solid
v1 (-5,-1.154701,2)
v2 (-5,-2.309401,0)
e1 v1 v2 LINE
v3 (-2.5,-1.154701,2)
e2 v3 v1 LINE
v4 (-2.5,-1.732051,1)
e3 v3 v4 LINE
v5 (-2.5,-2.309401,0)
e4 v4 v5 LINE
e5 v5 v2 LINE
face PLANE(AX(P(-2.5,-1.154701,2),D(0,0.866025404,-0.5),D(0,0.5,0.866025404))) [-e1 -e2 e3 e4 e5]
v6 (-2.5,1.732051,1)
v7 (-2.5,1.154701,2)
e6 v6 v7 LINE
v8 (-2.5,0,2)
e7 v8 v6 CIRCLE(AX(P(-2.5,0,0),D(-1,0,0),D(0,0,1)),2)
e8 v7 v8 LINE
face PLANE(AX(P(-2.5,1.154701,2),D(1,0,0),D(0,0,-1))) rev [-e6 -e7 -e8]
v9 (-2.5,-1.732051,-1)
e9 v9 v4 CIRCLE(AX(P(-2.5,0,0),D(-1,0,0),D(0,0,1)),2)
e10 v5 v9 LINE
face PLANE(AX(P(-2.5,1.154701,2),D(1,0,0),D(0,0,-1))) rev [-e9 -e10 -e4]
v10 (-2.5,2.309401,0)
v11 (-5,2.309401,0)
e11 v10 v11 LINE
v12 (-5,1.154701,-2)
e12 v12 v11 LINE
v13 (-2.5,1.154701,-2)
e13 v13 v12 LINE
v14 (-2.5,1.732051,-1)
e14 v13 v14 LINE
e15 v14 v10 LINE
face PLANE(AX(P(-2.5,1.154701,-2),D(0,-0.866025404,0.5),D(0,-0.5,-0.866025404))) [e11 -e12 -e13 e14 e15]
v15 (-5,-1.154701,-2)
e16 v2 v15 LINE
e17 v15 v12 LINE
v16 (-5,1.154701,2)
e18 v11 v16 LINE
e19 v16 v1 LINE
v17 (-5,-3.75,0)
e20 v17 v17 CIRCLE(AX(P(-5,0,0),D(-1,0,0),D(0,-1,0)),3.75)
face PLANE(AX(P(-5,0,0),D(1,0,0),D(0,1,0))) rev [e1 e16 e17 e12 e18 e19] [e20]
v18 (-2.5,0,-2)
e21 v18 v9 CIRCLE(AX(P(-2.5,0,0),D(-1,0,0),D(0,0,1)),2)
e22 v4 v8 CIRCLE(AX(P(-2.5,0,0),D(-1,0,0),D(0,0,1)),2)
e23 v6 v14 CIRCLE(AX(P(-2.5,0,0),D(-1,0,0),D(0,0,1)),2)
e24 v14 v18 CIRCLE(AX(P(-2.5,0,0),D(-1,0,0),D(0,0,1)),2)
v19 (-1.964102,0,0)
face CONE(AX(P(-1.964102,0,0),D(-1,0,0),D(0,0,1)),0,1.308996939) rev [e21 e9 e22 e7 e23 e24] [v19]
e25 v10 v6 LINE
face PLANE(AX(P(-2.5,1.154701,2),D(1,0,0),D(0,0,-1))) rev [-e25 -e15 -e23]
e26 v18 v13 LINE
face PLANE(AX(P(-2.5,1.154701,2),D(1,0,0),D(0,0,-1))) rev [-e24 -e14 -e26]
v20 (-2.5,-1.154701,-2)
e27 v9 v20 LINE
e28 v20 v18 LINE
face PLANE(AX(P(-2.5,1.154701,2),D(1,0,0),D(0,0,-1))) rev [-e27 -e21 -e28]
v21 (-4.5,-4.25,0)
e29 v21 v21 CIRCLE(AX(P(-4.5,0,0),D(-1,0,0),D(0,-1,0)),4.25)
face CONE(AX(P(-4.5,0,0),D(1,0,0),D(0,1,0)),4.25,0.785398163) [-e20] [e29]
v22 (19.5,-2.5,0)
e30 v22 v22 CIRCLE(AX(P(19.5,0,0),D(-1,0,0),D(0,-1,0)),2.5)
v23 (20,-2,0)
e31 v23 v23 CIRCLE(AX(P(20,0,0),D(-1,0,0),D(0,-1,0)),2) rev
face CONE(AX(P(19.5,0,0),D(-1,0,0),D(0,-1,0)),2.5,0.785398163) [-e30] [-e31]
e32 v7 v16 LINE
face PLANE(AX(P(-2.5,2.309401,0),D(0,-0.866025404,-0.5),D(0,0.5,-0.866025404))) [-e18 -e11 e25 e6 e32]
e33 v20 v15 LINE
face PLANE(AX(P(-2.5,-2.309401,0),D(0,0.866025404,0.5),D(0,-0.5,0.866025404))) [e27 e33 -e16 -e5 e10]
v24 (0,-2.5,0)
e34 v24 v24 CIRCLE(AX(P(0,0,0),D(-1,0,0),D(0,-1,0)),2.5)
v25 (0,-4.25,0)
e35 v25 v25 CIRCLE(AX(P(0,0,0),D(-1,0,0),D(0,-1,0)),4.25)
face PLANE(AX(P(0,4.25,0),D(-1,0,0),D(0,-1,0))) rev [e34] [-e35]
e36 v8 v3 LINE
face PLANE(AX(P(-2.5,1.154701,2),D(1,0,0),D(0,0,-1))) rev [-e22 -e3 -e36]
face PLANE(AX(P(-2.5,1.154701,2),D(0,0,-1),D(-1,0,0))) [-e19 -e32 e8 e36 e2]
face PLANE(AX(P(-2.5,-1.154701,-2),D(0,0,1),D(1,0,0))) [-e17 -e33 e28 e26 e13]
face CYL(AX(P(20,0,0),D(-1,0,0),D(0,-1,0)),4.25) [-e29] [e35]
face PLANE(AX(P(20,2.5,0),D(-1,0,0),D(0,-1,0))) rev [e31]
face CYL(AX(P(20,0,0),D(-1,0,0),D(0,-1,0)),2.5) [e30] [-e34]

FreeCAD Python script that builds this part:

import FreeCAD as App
import Part
import Sketcher
Q = App.Units.Quantity


def edges_at(feature, points):
    """Names of the edges that pass closest to the given points."""
    edges = feature.Shape.Edges
    near = lambda p: min(range(len(edges)), key=lambda i: edges[i].distToShape(Part.Vertex(*p))[0])
    return sorted({f"Edge{near(p) + 1}" for p in points})


def add_polygon(sketch, points):
    """Adds a closed chain of lines whose ends are joined by coincident constraints."""
    first, n = sketch.GeometryCount, len(points)
    for a, b in zip(points, points[1:] + points[:1]):
        sketch.addGeometry(Part.LineSegment(App.Vector(*a, 0), App.Vector(*b, 0)), False)
    for i in range(n):
        sketch.addConstraint(Sketcher.Constraint("Coincident", first + i, 2, first + (i + 1) % n, 1))

doc = App.newDocument("Part")
body = doc.addObject("PartDesign::Body", "Body")

# Sketch on XY plane
sketch1 = body.newObject("Sketcher::SketchObject", "Sketch")
sketch1.AttachmentSupport = (doc.getObject("XY_Plane"), [""])
sketch1.MapMode = "FlatFace"
add_polygon(sketch1, [(-5, 3.75), (-5, 0), (20, 0), (20, 2.5), (0, 2.5), (0, 4.25), (-4.5, 4.25)])  # lines 0-6
sketch1.addConstraint([
    Sketcher.Constraint("Vertical", 0),
    Sketcher.Constraint("Horizontal", 1),
    Sketcher.Constraint("Vertical", 2),
    Sketcher.Constraint("Horizontal", 3),
    Sketcher.Constraint("Vertical", 4),
    Sketcher.Constraint("Horizontal", 5),
    Sketcher.Constraint("PointOnObject", 0, 2, -1),
    Sketcher.Constraint("PointOnObject", 3, 2, -2),
    Sketcher.Constraint("DistanceX", 1, 1, 1, 2, 25.0),
    Sketcher.Constraint("DistanceX", 3, 2, 3, 1, 20.0),
    Sketcher.Constraint("Angle", 6, Q("-135 deg")),
    Sketcher.Constraint("DistanceX", 5, 2, 5, 1, 4.5),
    Sketcher.Constraint("DistanceY", 2, 1, 2, 2, 2.5),
    Sketcher.Constraint("DistanceY", 0, 2, 0, 1, 3.75),
])
revolution = body.newObject("PartDesign::Revolution", "Revolution")
revolution.Profile = sketch1
revolution.ReferenceAxis = (sketch1, ["H_Axis"])
revolution.Angle = 360
doc.recompute()

chamfer = body.newObject("PartDesign::Chamfer", "Chamfer")
chamfer.Base = (revolution, edges_at(revolution, [(20, -2.5, 0)]))
chamfer.Size = 0.5

# Sketch on XY plane
sketch2 = body.newObject("Sketcher::SketchObject", "Sketch001")
sketch2.AttachmentSupport = (doc.getObject("XY_Plane"), [""])
sketch2.MapMode = "FlatFace"
add_polygon(sketch2, [(-5, 2), (-5, 0), (-1.964102, 0), (-2.5, 2)])  # lines 0-3
sketch2.addConstraint([
    Sketcher.Constraint("Vertical", 0),
    Sketcher.Constraint("Horizontal", 1),
    Sketcher.Constraint("Horizontal", 3),
    Sketcher.Constraint("PointOnObject", 0, 2, -1),
    Sketcher.Constraint("DistanceY", 0, 2, 0, 1, 2.0),
    Sketcher.Constraint("Angle", 2, Q("105 deg")),
    Sketcher.Constraint("DistanceX", 3, 2, 3, 1, 2.5),
    Sketcher.Constraint("DistanceX", 0, 2, -1, 1, 5.0),
])
groove = body.newObject("PartDesign::Groove", "Groove")
groove.Profile = sketch2
groove.ReferenceAxis = (sketch2, ["H_Axis"])
groove.Angle = 360

# Sketch on YZ plane
sketch3 = body.newObject("Sketcher::SketchObject", "Sketch002")
sketch3.AttachmentSupport = (doc.getObject("YZ_Plane"), [""])
sketch3.MapMode = "FlatFace"
sketch3.AttachmentOffset = App.Placement(App.Vector(0, 0, -5), App.Rotation())
add_polygon(sketch3, [(1.154701, 2), (-1.154701, 2), (-2.309401, 0), (-1.154701, -2), (1.154701, -2), (2.309401, 0)])  # lines 0-5
sketch3.addConstraint([
    Sketcher.Constraint("Horizontal", 0),
    Sketcher.Constraint("Horizontal", 3),
    Sketcher.Constraint("Symmetric", 0, 2, 3, 2, -1, 1),
    Sketcher.Constraint("Symmetric", 1, 2, 4, 2, -1, 1),
    Sketcher.Constraint("PointOnObject", 1, 2, -1),
    Sketcher.Constraint("Parallel", 2, 5),
    Sketcher.Constraint("Vertical", 0, 2, 2, 2),
    Sketcher.Constraint("Angle", 1, Q("-120 deg")),
    Sketcher.Constraint("DistanceY", -1, 1, 0, 2, 2.0),
    Sketcher.Constraint("DistanceX", 0, 2, 0, 1, 2.309401),
])
pocket1 = body.newObject("PartDesign::Pocket", "Pocket")
pocket1.Profile = sketch3
pocket1.Length = 2.5
pocket1.Reversed = True

doc.recompute()
